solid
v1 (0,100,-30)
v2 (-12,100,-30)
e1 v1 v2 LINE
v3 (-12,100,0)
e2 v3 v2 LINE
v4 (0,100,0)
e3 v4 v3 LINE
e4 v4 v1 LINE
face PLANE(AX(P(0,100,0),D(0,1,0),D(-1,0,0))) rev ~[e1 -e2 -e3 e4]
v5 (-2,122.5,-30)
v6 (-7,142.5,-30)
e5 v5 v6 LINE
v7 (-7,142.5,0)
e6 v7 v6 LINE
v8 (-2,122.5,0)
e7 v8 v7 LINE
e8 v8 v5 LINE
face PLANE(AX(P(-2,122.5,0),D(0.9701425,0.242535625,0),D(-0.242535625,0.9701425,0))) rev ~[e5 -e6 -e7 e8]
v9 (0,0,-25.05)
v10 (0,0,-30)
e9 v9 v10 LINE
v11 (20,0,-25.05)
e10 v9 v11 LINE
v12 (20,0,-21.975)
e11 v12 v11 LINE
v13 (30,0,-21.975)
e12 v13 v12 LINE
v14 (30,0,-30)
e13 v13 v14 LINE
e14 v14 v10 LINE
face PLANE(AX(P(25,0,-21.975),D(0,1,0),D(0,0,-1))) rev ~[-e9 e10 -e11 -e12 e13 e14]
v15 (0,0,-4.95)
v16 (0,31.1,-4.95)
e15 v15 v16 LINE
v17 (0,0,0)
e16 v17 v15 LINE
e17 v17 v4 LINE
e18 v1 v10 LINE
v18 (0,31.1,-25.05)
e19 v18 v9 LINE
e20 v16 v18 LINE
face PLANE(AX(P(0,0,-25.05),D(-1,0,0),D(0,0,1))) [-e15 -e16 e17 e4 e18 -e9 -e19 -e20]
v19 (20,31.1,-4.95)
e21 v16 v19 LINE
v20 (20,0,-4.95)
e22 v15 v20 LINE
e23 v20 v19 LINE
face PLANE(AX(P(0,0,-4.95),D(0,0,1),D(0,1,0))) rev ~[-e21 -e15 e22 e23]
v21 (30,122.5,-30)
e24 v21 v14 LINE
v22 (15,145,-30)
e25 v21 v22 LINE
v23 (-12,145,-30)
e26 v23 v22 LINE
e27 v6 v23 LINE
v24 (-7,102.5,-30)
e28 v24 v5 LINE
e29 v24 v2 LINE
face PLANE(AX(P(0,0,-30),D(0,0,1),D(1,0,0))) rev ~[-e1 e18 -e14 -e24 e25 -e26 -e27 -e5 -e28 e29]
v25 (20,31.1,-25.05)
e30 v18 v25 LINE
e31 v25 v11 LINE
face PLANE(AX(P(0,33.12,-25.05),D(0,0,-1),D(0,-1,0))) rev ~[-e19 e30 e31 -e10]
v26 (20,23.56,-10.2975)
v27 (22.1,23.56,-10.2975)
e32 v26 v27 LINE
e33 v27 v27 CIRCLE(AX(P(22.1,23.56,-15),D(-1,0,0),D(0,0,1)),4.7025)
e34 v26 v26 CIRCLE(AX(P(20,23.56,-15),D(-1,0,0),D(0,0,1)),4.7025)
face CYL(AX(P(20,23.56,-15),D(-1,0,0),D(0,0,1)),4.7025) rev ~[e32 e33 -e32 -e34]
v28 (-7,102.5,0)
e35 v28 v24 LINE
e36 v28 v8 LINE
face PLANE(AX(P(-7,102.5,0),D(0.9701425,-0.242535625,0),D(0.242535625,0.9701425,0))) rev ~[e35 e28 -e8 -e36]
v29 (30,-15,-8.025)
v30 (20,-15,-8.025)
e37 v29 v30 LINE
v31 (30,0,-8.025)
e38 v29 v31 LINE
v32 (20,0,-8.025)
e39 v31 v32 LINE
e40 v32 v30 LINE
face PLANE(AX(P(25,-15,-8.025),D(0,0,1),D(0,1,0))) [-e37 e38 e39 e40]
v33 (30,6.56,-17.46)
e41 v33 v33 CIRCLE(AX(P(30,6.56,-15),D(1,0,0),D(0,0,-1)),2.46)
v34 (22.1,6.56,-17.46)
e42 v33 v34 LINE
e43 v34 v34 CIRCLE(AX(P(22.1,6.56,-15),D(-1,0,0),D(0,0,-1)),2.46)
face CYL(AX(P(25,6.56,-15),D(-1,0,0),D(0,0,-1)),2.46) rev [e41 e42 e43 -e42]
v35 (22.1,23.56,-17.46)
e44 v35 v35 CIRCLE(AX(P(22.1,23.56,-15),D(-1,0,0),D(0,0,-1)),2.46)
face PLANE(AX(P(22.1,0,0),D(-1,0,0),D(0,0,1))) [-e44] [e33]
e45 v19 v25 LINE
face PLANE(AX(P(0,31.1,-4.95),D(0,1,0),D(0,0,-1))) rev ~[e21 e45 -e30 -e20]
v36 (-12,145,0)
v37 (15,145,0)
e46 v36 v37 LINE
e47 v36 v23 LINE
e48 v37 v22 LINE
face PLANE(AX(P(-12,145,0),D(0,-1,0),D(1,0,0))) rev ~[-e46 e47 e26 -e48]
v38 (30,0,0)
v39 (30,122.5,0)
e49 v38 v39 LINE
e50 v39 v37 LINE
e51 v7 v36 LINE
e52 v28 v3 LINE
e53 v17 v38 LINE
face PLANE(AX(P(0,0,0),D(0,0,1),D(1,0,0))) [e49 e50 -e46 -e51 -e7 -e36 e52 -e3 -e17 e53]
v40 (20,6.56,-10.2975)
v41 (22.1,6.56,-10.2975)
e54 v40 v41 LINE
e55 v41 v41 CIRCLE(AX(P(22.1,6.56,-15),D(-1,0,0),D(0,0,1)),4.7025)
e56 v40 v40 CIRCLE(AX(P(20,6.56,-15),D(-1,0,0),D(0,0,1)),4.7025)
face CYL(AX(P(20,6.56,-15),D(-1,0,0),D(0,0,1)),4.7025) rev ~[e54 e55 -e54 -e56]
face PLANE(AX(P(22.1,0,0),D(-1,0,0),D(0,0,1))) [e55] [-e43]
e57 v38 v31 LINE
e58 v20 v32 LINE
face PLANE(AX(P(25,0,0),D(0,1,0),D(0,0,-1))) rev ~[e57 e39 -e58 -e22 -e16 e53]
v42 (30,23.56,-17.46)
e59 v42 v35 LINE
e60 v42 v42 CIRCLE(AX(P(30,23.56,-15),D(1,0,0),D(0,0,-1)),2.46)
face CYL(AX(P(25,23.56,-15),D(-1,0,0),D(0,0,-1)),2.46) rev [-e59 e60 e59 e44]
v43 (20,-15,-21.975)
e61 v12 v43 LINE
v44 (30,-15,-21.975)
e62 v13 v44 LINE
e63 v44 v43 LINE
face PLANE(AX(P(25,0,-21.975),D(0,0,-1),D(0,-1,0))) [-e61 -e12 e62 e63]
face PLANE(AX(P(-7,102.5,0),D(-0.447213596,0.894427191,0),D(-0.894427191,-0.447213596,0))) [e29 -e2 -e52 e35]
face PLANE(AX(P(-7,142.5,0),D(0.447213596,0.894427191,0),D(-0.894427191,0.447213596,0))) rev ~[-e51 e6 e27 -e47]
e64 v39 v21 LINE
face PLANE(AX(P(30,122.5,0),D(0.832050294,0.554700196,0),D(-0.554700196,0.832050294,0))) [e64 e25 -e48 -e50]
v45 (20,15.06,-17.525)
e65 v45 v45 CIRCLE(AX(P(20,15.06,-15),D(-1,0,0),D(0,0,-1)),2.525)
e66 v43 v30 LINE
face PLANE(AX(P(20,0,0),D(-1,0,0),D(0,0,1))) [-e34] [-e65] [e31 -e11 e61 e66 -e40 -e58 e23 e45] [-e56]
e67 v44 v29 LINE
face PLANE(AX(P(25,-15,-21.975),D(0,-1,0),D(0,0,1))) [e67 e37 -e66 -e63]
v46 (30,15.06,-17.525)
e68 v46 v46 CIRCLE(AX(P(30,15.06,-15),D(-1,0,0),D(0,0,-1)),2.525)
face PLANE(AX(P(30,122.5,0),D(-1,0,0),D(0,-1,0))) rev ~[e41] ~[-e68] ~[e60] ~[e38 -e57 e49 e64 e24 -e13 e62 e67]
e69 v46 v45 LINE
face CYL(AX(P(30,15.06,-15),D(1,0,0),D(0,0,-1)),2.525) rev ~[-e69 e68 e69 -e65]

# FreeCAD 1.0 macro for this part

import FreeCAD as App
import Part
import Sketcher
from FreeCAD import Vector
Q = App.Units.Quantity


def add_polygon(sketch, points):
    """Adds a closed chain of lines whose ends are joined by coincident constraints."""
    first, n = sketch.GeometryCount, len(points)
    for a, b in zip(points, points[1:] + points[:1]):
        sketch.addGeometry(Part.LineSegment(App.Vector(*a, 0), App.Vector(*b, 0)), False)
    for i in range(n):
        sketch.addConstraint(Sketcher.Constraint("Coincident", first + i, 2, first + (i + 1) % n, 1))

doc = App.newDocument("Part")
params = doc.addObject("Spreadsheet::Sheet", "Params")
for row, (alias, value) in enumerate([
    ("sketch1_width", "25 mm"),
    ("sketch1_height", "40 mm"),
    ("pad1_length", "30 mm"),
    ("sketch2_diameter", "4.92 mm"),
    ("pocket1_length", "30 mm"),
    ("sketch3_height", "20.1 mm"),
    ("sketch3_width", "33.12 mm"),
    ("pocket2_length", "20 mm"),
    ("sketch4_height", "13.95 mm"),
    ("sketch4_width", "5 mm"),
    ("pad2_length", "15 mm"),
    ("sketch5_diameter", "4.92 mm"),
    ("pocket3_length", "2.1 mm"),
    ("sketch6_diameter", "4.92 mm"),
    ("pocket4_length", "10 mm"),
    ("sketch7_diameter", "4.92 mm"),
    ("pocket5_length", "2.1 mm"),
    ("sketch8_diameter", "4.92 mm"),
    ("sketch8_width", "40 mm"),
    ("sketch8_width2", "15 mm"),
    ("sketch8_height", "30 mm"),
    ("sketch8_height2", "13.95 mm"),
    ("pad3_length", "5 mm"),
    ("sketch9_width", "30 mm"),
    ("pad4_length", "30 mm"),
    ("sketch10_diameter", "5.05 mm"),
    ("pocket6_length", "30 mm"),
    ("sketch11_width", "12 mm"),
    ("sketch11_width2", "30 mm"),
    ("sketch11_width3", "27 mm"),
    ("sketch11_height", "52.5 mm"),
    ("pad5_length", "30 mm"),
    ("sketch12_width", "2.02 mm"),
    ("sketch12_height", "20.1 mm"),
    ("pad6_length", "20 mm"),
], start=1):
    params.set(f"A{row}", alias)
    params.set(f"B{row}", "=" + value)
    params.setAlias(f"B{row}", alias)

body = doc.addObject("PartDesign::Body", "Body")

sketch1 = body.newObject("Sketcher::SketchObject", "Sketch")
sketch1.AttachmentSupport = (doc.getObject("XY_Plane"), [""])
sketch1.MapMode = "FlatFace"
add_polygon(sketch1, [(0, 40), (0, 0), (25, 0), (25, 40)])
sketch1.addConstraint([
    Sketcher.Constraint("Vertical", 0),
    Sketcher.Constraint("Horizontal", 1),
    Sketcher.Constraint("Vertical", 2),
    Sketcher.Constraint("Horizontal", 3),
    Sketcher.Constraint("Coincident", 0, 2, -1, 1),
    Sketcher.Constraint("DistanceX", 1, 1, 1, 2, Q("25 mm")),
    Sketcher.Constraint("DistanceY", 0, 2, 0, 1, Q("40 mm")),
])
sketch1.setExpression("Constraints[9]", "Params.sketch1_width")
sketch1.setExpression("Constraints[10]", "Params.sketch1_height")
pad1 = body.newObject("PartDesign::Pad", "Pad")
pad1.Profile = sketch1
pad1.setExpression("Length", "Params.pad1_length")
pad1.Reversed = True

sketch2 = body.newObject("Sketcher::SketchObject", "Sketch001")
sketch2.AttachmentSupport = (doc.getObject("YZ_Plane"), [""])
sketch2.MapMode = "FlatFace"
sketch2.AttachmentOffset = App.Placement(Vector(0, 0, 25), App.Rotation())
sketch2.addGeometry(Part.Circle(Vector(6.6, -15, 0), Vector(0, 0, 1), 2.5), False)
sketch2.addConstraint([
    Sketcher.Constraint("Diameter", 0, Q("4.92 mm")),
    Sketcher.Constraint("DistanceY", 0, 3, -1, 1, Q("15 mm")),
    Sketcher.Constraint("DistanceX", -1, 1, 0, 3, Q("6.56 mm")),
])
sketch2.setExpression("Constraints[0]", "Params.sketch2_diameter")
pocket1 = body.newObject("PartDesign::Pocket", "Pocket")
pocket1.Profile = sketch2
pocket1.setExpression("Length", "Params.pocket1_length")

sketch3 = body.newObject("Sketcher::SketchObject", "Sketch002")
sketch3.AttachmentSupport = (doc.getObject("YZ_Plane"), [""])
sketch3.MapMode = "FlatFace"
add_polygon(sketch3, [(0, -25), (0, -5), (33, -5), (33, -25)])
sketch3.addConstraint([
    Sketcher.Constraint("Vertical", 0),
    Sketcher.Constraint("Horizontal", 1),
    Sketcher.Constraint("Vertical", 2),
    Sketcher.Constraint("Horizontal", 3),
    Sketcher.Constraint("PointOnObject", 0, 2, -2),
    Sketcher.Constraint("DistanceY", 0, 1, 0, 2, Q("20.1 mm")),
    Sketcher.Constraint("DistanceX", 1, 1, 1, 2, Q("33.12 mm")),
    Sketcher.Constraint("DistanceY", 0, 2, -1, 1, Q("4.95 mm")),
])
sketch3.setExpression("Constraints[9]", "Params.sketch3_height")
sketch3.setExpression("Constraints[10]", "Params.sketch3_width")
pocket2 = body.newObject("PartDesign::Pocket", "Pocket001")
pocket2.Profile = sketch3
pocket2.setExpression("Length", "Params.pocket2_length")
pocket2.Reversed = True

sketch4 = body.newObject("Sketcher::SketchObject", "Sketch003")
sketch4.AttachmentSupport = (doc.getObject("XZ_Plane"), [""])
sketch4.MapMode = "FlatFace"
add_polygon(sketch4, [(25, -8), (20, -8), (20, -22), (25, -22)])
sketch4.addConstraint([
    Sketcher.Constraint("Horizontal", 0),
    Sketcher.Constraint("Vertical", 1),
    Sketcher.Constraint("Horizontal", 2),
    Sketcher.Constraint("Vertical", 3),
    Sketcher.Constraint("DistanceY", 1, 2, 1, 1, Q("13.95 mm")),
    Sketcher.Constraint("DistanceX", 0, 2, 0, 1, Q("5 mm")),
    Sketcher.Constraint("DistanceX", -1, 1, 0, 2, Q("20 mm")),
    Sketcher.Constraint("DistanceY", 0, 2, -1, 1, Q("8.025 mm")),
])
sketch4.setExpression("Constraints[8]", "Params.sketch4_height")
sketch4.setExpression("Constraints[9]", "Params.sketch4_width")
pad2 = body.newObject("PartDesign::Pad", "Pad001")
pad2.Profile = sketch4
pad2.setExpression("Length", "Params.pad2_length")

sketch5 = body.newObject("Sketcher::SketchObject", "Sketch004")
sketch5.AttachmentSupport = (doc.getObject("YZ_Plane"), [""])
sketch5.MapMode = "FlatFace"
sketch5.AttachmentOffset = App.Placement(Vector(0, 0, 20), App.Rotation())
sketch5.addGeometry([
    Part.Circle(Vector(6.6, -15, 0), Vector(0, 0, 1), 4.7),
    Part.Circle(Vector(6.6, -15, 0), Vector(0, 0, 1), 2.5),
], False)
sketch5.addConstraint([
    Sketcher.Constraint("Coincident", 1, 3, 0, 3),
    Sketcher.Constraint("Diameter", 0, Q("9.405 mm")),
    Sketcher.Constraint("Diameter", 1, Q("4.92 mm")),
    Sketcher.Constraint("DistanceY", 0, 3, -1, 1, Q("15 mm")),
    Sketcher.Constraint("DistanceX", -1, 1, 0, 3, Q("6.56 mm")),
])
sketch5.setExpression("Constraints[2]", "Params.sketch5_diameter")
pocket3 = body.newObject("PartDesign::Pocket", "Pocket002")
pocket3.Profile = sketch5
pocket3.setExpression("Length", "Params.pocket3_length")
pocket3.Reversed = True

sketch6 = body.newObject("Sketcher::SketchObject", "Sketch005")
sketch6.AttachmentSupport = (doc.getObject("YZ_Plane"), [""])
sketch6.MapMode = "FlatFace"
sketch6.AttachmentOffset = App.Placement(Vector(0, 0, 25), App.Rotation())
sketch6.addGeometry(Part.Circle(Vector(23.6, -15, 0), Vector(0, 0, 1), 2.5), False)
sketch6.addConstraint([
    Sketcher.Constraint("Diameter", 0, Q("4.92 mm")),
    Sketcher.Constraint("DistanceY", 0, 3, -1, 1, Q("15 mm")),
    Sketcher.Constraint("DistanceX", -1, 1, 0, 3, Q("23.56 mm")),
])
sketch6.setExpression("Constraints[0]", "Params.sketch6_diameter")
pocket4 = body.newObject("PartDesign::Pocket", "Pocket003")
pocket4.Profile = sketch6
pocket4.setExpression("Length", "Params.pocket4_length")

sketch7 = body.newObject("Sketcher::SketchObject", "Sketch006")
sketch7.AttachmentSupport = (doc.getObject("YZ_Plane"), [""])
sketch7.MapMode = "FlatFace"
sketch7.AttachmentOffset = App.Placement(Vector(0, 0, 20), App.Rotation())
sketch7.addGeometry([
    Part.Circle(Vector(23.6, -15, 0), Vector(0, 0, 1), 4.7),
    Part.Circle(Vector(23.6, -15, 0), Vector(0, 0, 1), 2.5),
], False)
sketch7.addConstraint([
    Sketcher.Constraint("Coincident", 1, 3, 0, 3),
    Sketcher.Constraint("Diameter", 0, Q("9.405 mm")),
    Sketcher.Constraint("Diameter", 1, Q("4.92 mm")),
    Sketcher.Constraint("DistanceY", 0, 3, -1, 1, Q("15 mm")),
    Sketcher.Constraint("DistanceX", -1, 1, 0, 3, Q("23.56 mm")),
])
sketch7.setExpression("Constraints[2]", "Params.sketch7_diameter")
pocket5 = body.newObject("PartDesign::Pocket", "Pocket004")
pocket5.Profile = sketch7
pocket5.setExpression("Length", "Params.pocket5_length")
pocket5.Reversed = True

sketch8 = body.newObject("Sketcher::SketchObject", "Sketch007")
sketch8.AttachmentSupport = (doc.getObject("YZ_Plane"), [""])
sketch8.MapMode = "FlatFace"
sketch8.AttachmentOffset = App.Placement(Vector(0, 0, 25), App.Rotation())
add_polygon(sketch8, [(0, -30), (40, -30), (40, 0), (0, 0), (0, -8), (-15, -8), (-15, -22), (0, -22)])
sketch8.addGeometry(Part.Circle(Vector(6.6, -15, 0), Vector(0, 0, 1), 2.5), False)
sketch8.addGeometry(Part.Circle(Vector(23.6, -15, 0), Vector(0, 0, 1), 2.5), False)
sketch8.addConstraint([
    Sketcher.Constraint("Horizontal", 0),
    Sketcher.Constraint("Vertical", 1),
    Sketcher.Constraint("Horizontal", 2),
    Sketcher.Constraint("Vertical", 3),
    Sketcher.Constraint("Horizontal", 4),
    Sketcher.Constraint("Vertical", 5),
    Sketcher.Constraint("Horizontal", 6),
    Sketcher.Constraint("Vertical", 7),
    Sketcher.Constraint("Coincident", 2, 2, -1, 1),
    Sketcher.Constraint("Equal", 8, 9),
    Sketcher.Constraint("PointOnObject", 6, 2, -2),
    Sketcher.Constraint("Horizontal", 8, 3, 9, 3),
    Sketcher.Constraint("Equal", 3, 7),
    Sketcher.Constraint("Diameter", 8, Q("4.92 mm")),
    Sketcher.Constraint("DistanceX", 0, 1, 0, 2, Q("40 mm")),
    Sketcher.Constraint("DistanceX", 4, 2, 4, 1, Q("15 mm")),
    Sketcher.Constraint("DistanceY", 1, 1, 1, 2, Q("30 mm")),
    Sketcher.Constraint("DistanceY", 8, 3, -1, 1, Q("15 mm")),
    Sketcher.Constraint("DistanceX", 8, 3, 9, 3, Q("17 mm")),
    Sketcher.Constraint("DistanceY", 5, 2, 5, 1, Q("13.95 mm")),
    Sketcher.Constraint("DistanceX", -1, 1, 8, 3, Q("6.56 mm")),
])
sketch8.setExpression("Constraints[21]", "Params.sketch8_diameter")
sketch8.setExpression("Constraints[22]", "Params.sketch8_width")
sketch8.setExpression("Constraints[23]", "Params.sketch8_width2")
sketch8.setExpression("Constraints[24]", "Params.sketch8_height")
sketch8.setExpression("Constraints[27]", "Params.sketch8_height2")
pad3 = body.newObject("PartDesign::Pad", "Pad002")
pad3.Profile = sketch8
pad3.setExpression("Length", "Params.pad3_length")

sketch9 = body.newObject("Sketcher::SketchObject", "Sketch008")
sketch9.AttachmentSupport = (doc.getObject("XZ_Plane"), [""])
sketch9.MapMode = "FlatFace"
sketch9.AttachmentOffset = App.Placement(Vector(0, 0, -40), App.Rotation())
add_polygon(sketch9, [(30, -30), (0, -30), (0, 0), (30, 0)])
sketch9.addConstraint([
    Sketcher.Constraint("Horizontal", 0),
    Sketcher.Constraint("Vertical", 1),
    Sketcher.Constraint("Horizontal", 2),
    Sketcher.Constraint("Vertical", 3),
    Sketcher.Constraint("Coincident", 1, 2, -1, 1),
    Sketcher.Constraint("Equal", 2, 1),
    Sketcher.Constraint("DistanceX", 0, 2, 0, 1, Q("30 mm")),
])
sketch9.setExpression("Constraints[10]", "Params.sketch9_width")
pad4 = body.newObject("PartDesign::Pad", "Pad003")
pad4.Profile = sketch9
pad4.setExpression("Length", "Params.pad4_length")
pad4.Reversed = True

sketch10 = body.newObject("Sketcher::SketchObject", "Sketch009")
sketch10.AttachmentSupport = (doc.getObject("YZ_Plane"), [""])
sketch10.MapMode = "FlatFace"
sketch10.AttachmentOffset = App.Placement(Vector(0, 0, 30), App.Rotation())
sketch10.addGeometry(Part.Circle(Vector(15.1, -15, 0), Vector(0, 0, 1), 2.5), False)
sketch10.addConstraint([
    Sketcher.Constraint("Diameter", 0, Q("5.05 mm")),
    Sketcher.Constraint("DistanceY", 0, 3, -1, 1, Q("15 mm")),
    Sketcher.Constraint("DistanceX", -1, 1, 0, 3, Q("15.06 mm")),
])
sketch10.setExpression("Constraints[0]", "Params.sketch10_diameter")
pocket6 = body.newObject("PartDesign::Pocket", "Pocket005")
pocket6.Profile = sketch10
pocket6.setExpression("Length", "Params.pocket6_length")

sketch11 = body.newObject("Sketcher::SketchObject", "Sketch010")
sketch11.AttachmentSupport = (doc.getObject("XY_Plane"), [""])
sketch11.MapMode = "FlatFace"
add_polygon(sketch11, [(0, 70), (30, 70), (30, 122), (15, 145), (-12, 145), (-7, 142), (-2, 122), (-7, 102), (-12, 100), (0, 100)])
sketch11.addConstraint([
    Sketcher.Constraint("Horizontal", 0),
    Sketcher.Constraint("Vertical", 1),
    Sketcher.Constraint("Horizontal", 3),
    Sketcher.Constraint("Horizontal", 8),
    Sketcher.Constraint("Vertical", 9),
    Sketcher.Constraint("PointOnObject", 8, 2, -2),
    Sketcher.Constraint("Horizontal", 1, 2, 5, 2),
    Sketcher.Constraint("Vertical", 4, 2, 6, 2),
    Sketcher.Constraint("Vertical", 3, 2, 7, 2),
    Sketcher.Constraint("Equal", 0, 9),
    Sketcher.Constraint("Equal", 5, 6),
    Sketcher.Constraint("Equal", 4, 7),
    Sketcher.Constraint("DistanceX", 8, 1, 8, 2, Q("12 mm")),
    Sketcher.Constraint("DistanceX", 0, 1, 0, 2, Q("30 mm")),
    Sketcher.Constraint("DistanceX", 3, 2, 3, 1, Q("27 mm")),
    Sketcher.Constraint("DistanceY", 1, 1, 1, 2, Q("52.5 mm")),
    Sketcher.Constraint("DistanceY", -1, 1, 0, 2, Q("70 mm")),
    Sketcher.Constraint("DistanceX", 4, 2, -1, 1, Q("7 mm")),
    Sketcher.Constraint("DistanceX", 5, 2, -1, 1, Q("2 mm")),
    Sketcher.Constraint("DistanceY", 1, 2, 4, 2, Q("20 mm")),
])
sketch11.setExpression("Constraints[22]", "Params.sketch11_width")
sketch11.setExpression("Constraints[23]", "Params.sketch11_width2")
sketch11.setExpression("Constraints[24]", "Params.sketch11_width3")
sketch11.setExpression("Constraints[25]", "Params.sketch11_height")
pad5 = body.newObject("PartDesign::Pad", "Pad004")
pad5.Profile = sketch11
pad5.setExpression("Length", "Params.pad5_length")
pad5.Reversed = True

sketch12 = body.newObject("Sketcher::SketchObject", "Sketch011")
sketch12.AttachmentSupport = (doc.getObject("YZ_Plane"), [""])
sketch12.MapMode = "FlatFace"
add_polygon(sketch12, [(33.1, -5), (33.1, -25.1), (31.1, -25.1), (31.1, -5)])
sketch12.addConstraint([
    Sketcher.Constraint("Vertical", 0),
    Sketcher.Constraint("Horizontal", 1),
    Sketcher.Constraint("Vertical", 2),
    Sketcher.Constraint("Horizontal", 3),
    Sketcher.Constraint("DistanceX", 1, 2, 1, 1, Q("2.02 mm")),
    Sketcher.Constraint("DistanceY", 0, 2, 0, 1, Q("20.1 mm")),
    Sketcher.Constraint("DistanceX", -1, 1, 1, 2, Q("31.1 mm")),
    Sketcher.Constraint("DistanceY", 0, 2, -1, 1, Q("25.05 mm")),
])
sketch12.setExpression("Constraints[8]", "Params.sketch12_width")
sketch12.setExpression("Constraints[9]", "Params.sketch12_height")
pad6 = body.newObject("PartDesign::Pad", "Pad005")
pad6.Profile = sketch12
pad6.setExpression("Length", "Params.pad6_length")

doc.recompute()
